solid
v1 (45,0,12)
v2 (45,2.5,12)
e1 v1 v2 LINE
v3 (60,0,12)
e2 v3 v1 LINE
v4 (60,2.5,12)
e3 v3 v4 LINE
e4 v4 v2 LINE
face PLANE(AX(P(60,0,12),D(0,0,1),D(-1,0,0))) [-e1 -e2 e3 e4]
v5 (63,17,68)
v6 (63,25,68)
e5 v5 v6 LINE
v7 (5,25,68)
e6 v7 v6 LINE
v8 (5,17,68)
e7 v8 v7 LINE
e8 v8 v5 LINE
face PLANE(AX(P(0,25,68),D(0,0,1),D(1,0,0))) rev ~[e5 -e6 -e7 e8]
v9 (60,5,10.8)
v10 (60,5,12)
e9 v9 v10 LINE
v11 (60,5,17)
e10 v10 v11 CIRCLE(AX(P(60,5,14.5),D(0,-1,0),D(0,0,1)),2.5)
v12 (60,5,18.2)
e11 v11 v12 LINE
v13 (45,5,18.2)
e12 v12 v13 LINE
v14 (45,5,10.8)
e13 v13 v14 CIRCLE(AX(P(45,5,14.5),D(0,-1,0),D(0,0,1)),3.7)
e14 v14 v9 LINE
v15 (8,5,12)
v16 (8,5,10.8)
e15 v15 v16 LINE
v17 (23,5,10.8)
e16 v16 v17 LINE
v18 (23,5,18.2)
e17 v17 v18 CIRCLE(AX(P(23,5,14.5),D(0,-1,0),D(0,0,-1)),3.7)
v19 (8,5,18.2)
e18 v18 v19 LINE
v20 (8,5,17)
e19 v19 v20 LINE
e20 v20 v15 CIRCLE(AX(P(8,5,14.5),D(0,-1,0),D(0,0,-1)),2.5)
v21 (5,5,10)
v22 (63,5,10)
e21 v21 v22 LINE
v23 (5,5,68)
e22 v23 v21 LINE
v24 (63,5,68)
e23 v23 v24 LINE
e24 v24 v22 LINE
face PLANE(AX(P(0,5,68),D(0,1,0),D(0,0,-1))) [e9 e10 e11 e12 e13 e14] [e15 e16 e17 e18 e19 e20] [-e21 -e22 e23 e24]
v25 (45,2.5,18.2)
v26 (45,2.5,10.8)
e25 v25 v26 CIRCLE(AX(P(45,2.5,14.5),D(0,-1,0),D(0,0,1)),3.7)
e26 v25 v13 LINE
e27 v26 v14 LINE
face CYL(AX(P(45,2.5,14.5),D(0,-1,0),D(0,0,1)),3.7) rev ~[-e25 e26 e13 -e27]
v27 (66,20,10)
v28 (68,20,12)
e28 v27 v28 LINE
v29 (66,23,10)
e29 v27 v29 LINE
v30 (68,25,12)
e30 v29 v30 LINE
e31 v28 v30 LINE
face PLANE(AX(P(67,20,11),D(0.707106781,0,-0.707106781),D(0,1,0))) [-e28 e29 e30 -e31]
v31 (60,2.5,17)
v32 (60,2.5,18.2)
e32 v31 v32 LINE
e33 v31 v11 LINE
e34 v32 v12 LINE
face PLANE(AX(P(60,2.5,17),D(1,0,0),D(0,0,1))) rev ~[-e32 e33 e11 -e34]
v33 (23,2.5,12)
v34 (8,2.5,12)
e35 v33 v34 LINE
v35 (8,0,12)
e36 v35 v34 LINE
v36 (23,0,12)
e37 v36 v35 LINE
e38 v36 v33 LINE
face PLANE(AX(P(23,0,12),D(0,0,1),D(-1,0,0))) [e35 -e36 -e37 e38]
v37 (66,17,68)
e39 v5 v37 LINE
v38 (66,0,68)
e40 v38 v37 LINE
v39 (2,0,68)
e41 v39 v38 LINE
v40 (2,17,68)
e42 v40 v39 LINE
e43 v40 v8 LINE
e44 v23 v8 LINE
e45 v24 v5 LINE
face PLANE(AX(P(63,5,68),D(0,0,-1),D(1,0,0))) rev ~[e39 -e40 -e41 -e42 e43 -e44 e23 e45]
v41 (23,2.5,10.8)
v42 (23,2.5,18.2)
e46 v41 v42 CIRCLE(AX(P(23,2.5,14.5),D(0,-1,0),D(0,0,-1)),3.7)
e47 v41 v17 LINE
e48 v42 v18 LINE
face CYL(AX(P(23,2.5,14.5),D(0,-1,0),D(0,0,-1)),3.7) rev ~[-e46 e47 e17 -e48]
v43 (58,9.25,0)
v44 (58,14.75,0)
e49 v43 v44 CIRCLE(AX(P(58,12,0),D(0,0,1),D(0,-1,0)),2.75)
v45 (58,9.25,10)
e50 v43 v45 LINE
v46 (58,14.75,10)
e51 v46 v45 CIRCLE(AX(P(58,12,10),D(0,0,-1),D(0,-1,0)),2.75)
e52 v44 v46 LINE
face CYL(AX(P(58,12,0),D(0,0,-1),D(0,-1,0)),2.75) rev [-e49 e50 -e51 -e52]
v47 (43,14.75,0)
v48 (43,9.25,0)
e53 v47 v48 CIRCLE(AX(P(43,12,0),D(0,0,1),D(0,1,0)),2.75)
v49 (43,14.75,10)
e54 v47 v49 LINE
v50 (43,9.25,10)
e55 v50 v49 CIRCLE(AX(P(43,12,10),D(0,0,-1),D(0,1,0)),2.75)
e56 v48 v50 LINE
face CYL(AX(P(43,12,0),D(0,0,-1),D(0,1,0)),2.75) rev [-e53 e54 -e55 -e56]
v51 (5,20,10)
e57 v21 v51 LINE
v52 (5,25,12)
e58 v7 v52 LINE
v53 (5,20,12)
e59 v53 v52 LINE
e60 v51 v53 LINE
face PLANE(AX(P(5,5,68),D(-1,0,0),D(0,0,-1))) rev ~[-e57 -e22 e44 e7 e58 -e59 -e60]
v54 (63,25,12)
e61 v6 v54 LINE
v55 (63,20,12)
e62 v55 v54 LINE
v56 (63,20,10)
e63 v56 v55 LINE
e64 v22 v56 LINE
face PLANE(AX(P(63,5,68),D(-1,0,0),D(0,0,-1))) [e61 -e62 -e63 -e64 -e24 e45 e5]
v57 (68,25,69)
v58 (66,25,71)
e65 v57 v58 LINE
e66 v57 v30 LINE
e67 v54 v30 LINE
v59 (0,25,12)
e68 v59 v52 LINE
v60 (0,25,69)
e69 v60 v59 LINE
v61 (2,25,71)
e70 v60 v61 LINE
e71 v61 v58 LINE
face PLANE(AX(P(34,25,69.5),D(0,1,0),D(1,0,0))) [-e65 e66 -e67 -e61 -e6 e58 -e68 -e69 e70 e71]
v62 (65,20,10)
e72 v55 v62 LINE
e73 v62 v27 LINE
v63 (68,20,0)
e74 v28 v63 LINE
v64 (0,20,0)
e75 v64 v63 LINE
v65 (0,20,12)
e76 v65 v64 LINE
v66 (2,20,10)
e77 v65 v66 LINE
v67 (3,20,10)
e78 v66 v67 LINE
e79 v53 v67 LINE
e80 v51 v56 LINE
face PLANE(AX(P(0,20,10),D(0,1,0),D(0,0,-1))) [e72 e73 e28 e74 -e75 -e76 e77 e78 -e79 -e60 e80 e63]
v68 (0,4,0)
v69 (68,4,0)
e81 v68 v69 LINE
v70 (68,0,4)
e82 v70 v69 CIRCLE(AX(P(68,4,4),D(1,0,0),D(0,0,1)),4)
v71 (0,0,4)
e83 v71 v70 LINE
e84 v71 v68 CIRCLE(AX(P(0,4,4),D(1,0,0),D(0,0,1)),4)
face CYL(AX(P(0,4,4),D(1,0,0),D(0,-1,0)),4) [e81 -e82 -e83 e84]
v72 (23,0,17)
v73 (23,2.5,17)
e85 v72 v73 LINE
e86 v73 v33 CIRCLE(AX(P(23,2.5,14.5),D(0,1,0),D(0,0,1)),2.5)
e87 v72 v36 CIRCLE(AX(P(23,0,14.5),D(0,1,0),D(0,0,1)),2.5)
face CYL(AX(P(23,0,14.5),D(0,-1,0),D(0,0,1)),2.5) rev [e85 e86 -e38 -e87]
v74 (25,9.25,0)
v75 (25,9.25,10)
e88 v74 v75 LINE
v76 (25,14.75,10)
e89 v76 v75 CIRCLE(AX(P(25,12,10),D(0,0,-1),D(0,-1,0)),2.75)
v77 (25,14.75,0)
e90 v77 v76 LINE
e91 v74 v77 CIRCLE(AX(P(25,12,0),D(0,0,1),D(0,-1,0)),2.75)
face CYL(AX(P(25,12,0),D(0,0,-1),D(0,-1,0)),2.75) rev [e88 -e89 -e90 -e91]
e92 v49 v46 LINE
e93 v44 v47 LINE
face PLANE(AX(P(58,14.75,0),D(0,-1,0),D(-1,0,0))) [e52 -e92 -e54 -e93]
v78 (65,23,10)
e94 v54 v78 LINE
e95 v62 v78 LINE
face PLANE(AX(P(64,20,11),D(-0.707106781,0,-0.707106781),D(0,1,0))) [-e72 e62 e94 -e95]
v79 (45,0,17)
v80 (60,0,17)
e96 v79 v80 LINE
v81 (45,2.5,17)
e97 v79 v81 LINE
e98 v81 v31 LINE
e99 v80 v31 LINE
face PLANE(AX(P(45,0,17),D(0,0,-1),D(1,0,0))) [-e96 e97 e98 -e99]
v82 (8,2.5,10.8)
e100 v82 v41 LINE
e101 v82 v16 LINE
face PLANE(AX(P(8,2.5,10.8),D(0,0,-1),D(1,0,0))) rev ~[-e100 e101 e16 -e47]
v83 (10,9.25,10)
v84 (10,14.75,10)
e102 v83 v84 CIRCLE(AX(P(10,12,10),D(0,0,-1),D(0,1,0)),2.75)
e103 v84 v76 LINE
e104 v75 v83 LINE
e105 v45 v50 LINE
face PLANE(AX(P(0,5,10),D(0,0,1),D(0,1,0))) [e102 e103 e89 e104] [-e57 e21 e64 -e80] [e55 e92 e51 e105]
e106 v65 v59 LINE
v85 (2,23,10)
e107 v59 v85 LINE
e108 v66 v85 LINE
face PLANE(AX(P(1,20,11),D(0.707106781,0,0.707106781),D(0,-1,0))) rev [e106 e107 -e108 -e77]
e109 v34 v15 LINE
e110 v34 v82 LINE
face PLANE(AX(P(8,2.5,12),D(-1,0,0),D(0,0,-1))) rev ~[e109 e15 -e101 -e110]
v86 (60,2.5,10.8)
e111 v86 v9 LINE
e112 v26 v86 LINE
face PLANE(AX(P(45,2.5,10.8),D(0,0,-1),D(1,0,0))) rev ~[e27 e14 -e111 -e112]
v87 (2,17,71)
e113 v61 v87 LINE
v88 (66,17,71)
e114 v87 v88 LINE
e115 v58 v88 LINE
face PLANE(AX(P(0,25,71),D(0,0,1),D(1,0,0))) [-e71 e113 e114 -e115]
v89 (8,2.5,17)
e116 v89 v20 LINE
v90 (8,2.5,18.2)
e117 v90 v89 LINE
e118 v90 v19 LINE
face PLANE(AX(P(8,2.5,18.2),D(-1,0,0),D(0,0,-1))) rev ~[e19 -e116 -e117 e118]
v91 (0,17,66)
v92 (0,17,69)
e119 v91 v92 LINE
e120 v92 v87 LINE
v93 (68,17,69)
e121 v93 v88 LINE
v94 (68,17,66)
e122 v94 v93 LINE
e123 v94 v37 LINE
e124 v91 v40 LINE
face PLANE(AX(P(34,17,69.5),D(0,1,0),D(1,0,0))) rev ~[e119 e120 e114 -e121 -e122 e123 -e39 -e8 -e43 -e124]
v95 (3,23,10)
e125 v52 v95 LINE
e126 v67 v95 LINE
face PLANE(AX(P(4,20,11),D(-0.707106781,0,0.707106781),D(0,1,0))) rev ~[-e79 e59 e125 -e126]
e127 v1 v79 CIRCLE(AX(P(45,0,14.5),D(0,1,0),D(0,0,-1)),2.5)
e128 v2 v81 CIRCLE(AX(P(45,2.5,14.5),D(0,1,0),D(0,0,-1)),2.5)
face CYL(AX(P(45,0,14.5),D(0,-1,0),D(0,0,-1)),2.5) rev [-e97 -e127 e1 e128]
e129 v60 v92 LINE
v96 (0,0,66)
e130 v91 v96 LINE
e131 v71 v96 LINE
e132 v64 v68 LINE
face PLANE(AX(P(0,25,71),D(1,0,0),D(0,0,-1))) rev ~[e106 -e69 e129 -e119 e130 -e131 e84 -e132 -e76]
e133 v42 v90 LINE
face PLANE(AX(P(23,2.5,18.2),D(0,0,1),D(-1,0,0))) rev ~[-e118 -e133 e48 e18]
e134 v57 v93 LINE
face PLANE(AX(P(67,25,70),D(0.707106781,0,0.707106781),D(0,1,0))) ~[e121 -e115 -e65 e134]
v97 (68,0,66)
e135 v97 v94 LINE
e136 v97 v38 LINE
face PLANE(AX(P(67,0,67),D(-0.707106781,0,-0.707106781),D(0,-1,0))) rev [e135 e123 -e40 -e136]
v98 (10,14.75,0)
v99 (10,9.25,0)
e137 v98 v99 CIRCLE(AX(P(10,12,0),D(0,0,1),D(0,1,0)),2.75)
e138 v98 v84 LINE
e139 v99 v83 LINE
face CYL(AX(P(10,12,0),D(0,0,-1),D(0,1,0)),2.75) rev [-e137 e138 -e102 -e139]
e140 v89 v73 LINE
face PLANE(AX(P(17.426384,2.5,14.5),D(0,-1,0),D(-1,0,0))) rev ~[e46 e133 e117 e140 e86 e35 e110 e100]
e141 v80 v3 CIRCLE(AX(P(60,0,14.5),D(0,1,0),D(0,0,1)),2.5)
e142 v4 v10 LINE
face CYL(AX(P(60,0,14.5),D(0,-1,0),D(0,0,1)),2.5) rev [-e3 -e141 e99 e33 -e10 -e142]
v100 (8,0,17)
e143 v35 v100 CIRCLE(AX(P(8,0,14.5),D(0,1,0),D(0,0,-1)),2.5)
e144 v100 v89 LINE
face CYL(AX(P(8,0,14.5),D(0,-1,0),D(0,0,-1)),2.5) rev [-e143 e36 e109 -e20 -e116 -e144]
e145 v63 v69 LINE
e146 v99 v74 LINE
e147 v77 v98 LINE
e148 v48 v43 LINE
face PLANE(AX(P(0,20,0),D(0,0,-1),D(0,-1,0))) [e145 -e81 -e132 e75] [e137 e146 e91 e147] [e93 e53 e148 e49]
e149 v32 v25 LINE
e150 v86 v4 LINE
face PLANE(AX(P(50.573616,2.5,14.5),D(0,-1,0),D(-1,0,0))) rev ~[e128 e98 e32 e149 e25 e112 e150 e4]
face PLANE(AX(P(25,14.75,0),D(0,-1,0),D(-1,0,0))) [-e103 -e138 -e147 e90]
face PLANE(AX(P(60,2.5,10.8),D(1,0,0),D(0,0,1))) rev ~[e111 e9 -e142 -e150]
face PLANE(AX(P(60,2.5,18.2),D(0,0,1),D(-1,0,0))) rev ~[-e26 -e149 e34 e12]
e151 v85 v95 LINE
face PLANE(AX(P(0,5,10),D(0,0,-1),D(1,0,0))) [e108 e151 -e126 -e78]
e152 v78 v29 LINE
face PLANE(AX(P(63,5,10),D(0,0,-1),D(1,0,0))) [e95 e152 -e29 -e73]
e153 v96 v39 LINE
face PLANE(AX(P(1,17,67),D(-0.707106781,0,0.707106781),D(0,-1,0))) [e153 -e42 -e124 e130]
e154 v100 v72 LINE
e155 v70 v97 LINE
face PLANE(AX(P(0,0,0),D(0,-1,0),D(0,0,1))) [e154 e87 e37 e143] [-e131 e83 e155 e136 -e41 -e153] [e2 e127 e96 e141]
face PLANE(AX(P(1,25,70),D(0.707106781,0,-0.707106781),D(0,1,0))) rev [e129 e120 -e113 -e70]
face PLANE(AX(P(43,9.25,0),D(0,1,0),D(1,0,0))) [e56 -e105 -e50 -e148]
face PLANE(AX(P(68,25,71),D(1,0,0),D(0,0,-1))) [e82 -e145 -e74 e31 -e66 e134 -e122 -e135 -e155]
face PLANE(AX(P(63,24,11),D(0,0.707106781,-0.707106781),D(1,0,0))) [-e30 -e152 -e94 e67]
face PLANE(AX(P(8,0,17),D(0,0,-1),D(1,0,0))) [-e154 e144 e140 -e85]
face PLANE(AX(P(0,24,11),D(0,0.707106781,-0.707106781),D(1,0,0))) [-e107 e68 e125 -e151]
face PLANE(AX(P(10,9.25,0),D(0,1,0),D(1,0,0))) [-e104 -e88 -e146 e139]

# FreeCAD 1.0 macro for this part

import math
import FreeCAD as App
import Part
import Sketcher


def edges_at(feature, points):
    """Names of the edges that pass closest to the given points."""
    edges = feature.Shape.Edges
    near = lambda p: min(range(len(edges)), key=lambda i: edges[i].distToShape(Part.Vertex(*p))[0])
    return sorted({f"Edge{near(p) + 1}" for p in points})


def add_polygon(sketch, points):
    """Adds a closed chain of lines whose ends are joined by coincident constraints."""
    first, n = sketch.GeometryCount, len(points)
    for a, b in zip(points, points[1:] + points[:1]):
        sketch.addGeometry(Part.LineSegment(App.Vector(*a, 0), App.Vector(*b, 0)), False)
    for i in range(n):
        sketch.addConstraint(Sketcher.Constraint("Coincident", first + i, 2, first + (i + 1) % n, 1))

doc = App.newDocument("Part")
body = doc.addObject("PartDesign::Body", "Body")

# Sketch on YZ plane
sketch1 = body.newObject("Sketcher::SketchObject", "Sketch")
sketch1.AttachmentSupport = (doc.getObject("YZ_Plane"), [""])
sketch1.MapMode = "FlatFace"
add_polygon(sketch1, [(0, 68), (0, 0), (20, 0), (20, 10), (5, 10), (5, 68)])  # lines 0-5
sketch1.addConstraint([
    Sketcher.Constraint("Vertical", 0),
    Sketcher.Constraint("Horizontal", 1),
    Sketcher.Constraint("Vertical", 2),
    Sketcher.Constraint("Horizontal", 3),
    Sketcher.Constraint("Vertical", 4),
    Sketcher.Constraint("Horizontal", 5),
    Sketcher.Constraint("Coincident", 0, 2, -1, 1),
    Sketcher.Constraint("DistanceX", 1, 1, 1, 2, 20.0),
    Sketcher.Constraint("DistanceX", 3, 2, 3, 1, 15.0),
    Sketcher.Constraint("DistanceY", 0, 2, 0, 1, 68.0),
    Sketcher.Constraint("DistanceY", 2, 1, 2, 2, 10.0),
])
pad1 = body.newObject("PartDesign::Pad", "Pad")
pad1.Profile = sketch1
pad1.Length = 68

# Sketch on XZ plane
sketch2 = body.newObject("Sketcher::SketchObject", "Sketch001")
sketch2.AttachmentSupport = (doc.getObject("XZ_Plane"), [""])
sketch2.MapMode = "FlatFace"
sketch2.AttachmentOffset = App.Placement(App.Vector(0, 0, -5), App.Rotation())
add_polygon(sketch2, [(63, 10), (63, 68), (68, 68), (68, 10)])  # lines 0-3
add_polygon(sketch2, [(0, 10), (0, 68), (5, 68), (5, 10)])  # lines 4-7
sketch2.addConstraint([
    Sketcher.Constraint("Vertical", 0),
    Sketcher.Constraint("Horizontal", 1),
    Sketcher.Constraint("Vertical", 2),
    Sketcher.Constraint("Horizontal", 3),
    Sketcher.Constraint("Vertical", 4),
    Sketcher.Constraint("Horizontal", 5),
    Sketcher.Constraint("Vertical", 6),
    Sketcher.Constraint("Horizontal", 7),
    Sketcher.Constraint("PointOnObject", 4, 2, -2),
    Sketcher.Constraint("Horizontal", 1, 2, 4, 2),
    Sketcher.Constraint("Horizontal", 3, 2, 6, 2),
    Sketcher.Constraint("Equal", 3, 5),
    Sketcher.Constraint("DistanceX", 1, 1, 1, 2, 5.0),
    Sketcher.Constraint("DistanceY", 0, 1, 0, 2, 58.0),
    Sketcher.Constraint("DistanceX", -1, 1, 0, 2, 63.0),
    Sketcher.Constraint("DistanceY", -1, 1, 0, 2, 68.0),
])
pad2 = body.newObject("PartDesign::Pad", "Pad001")
pad2.Profile = sketch2
pad2.Length = 20
pad2.Reversed = True

# Sketch on XY plane
sketch3 = body.newObject("Sketcher::SketchObject", "Sketch002")
sketch3.AttachmentSupport = (doc.getObject("XY_Plane"), [""])
sketch3.MapMode = "FlatFace"
sketch3.addGeometry([
    Part.LineSegment(App.Vector(43, 14.8, 0), App.Vector(58, 14.8, 0)),  # 0
    Part.ArcOfCircle(Part.Circle(App.Vector(58, 12, 0), App.Vector(0, 0, 1), 2.8), math.radians(-90), math.radians(90)),  # 1
    Part.LineSegment(App.Vector(58, 9.2, 0), App.Vector(43, 9.2, 0)),  # 2
    Part.ArcOfCircle(Part.Circle(App.Vector(43, 12, 0), App.Vector(0, 0, 1), 2.8), math.radians(90), math.radians(270)),  # 3
    Part.LineSegment(App.Vector(10, 14.8, 0), App.Vector(25, 14.8, 0)),  # 4
    Part.ArcOfCircle(Part.Circle(App.Vector(25, 12, 0), App.Vector(0, 0, 1), 2.8), math.radians(-90), math.radians(90)),  # 5
    Part.LineSegment(App.Vector(25, 9.2, 0), App.Vector(10, 9.2, 0)),  # 6
    Part.ArcOfCircle(Part.Circle(App.Vector(10, 12, 0), App.Vector(0, 0, 1), 2.8), math.radians(90), math.radians(270)),  # 7
], False)
sketch3.addConstraint([
    Sketcher.Constraint("Tangent", 0, 2, 1, 2),
    Sketcher.Constraint("Tangent", 1, 1, 2, 1),
    Sketcher.Constraint("Tangent", 2, 2, 3, 2),
    Sketcher.Constraint("Tangent", 3, 1, 0, 1),
    Sketcher.Constraint("Tangent", 4, 2, 5, 2),
    Sketcher.Constraint("Tangent", 5, 1, 6, 1),
    Sketcher.Constraint("Tangent", 6, 2, 7, 2),
    Sketcher.Constraint("Tangent", 7, 1, 4, 1),
    Sketcher.Constraint("Horizontal", 0),
    Sketcher.Constraint("Horizontal", 2),
    Sketcher.Constraint("Horizontal", 4),
    Sketcher.Constraint("Horizontal", 6),
    Sketcher.Constraint("Equal", 3, 5),
    Sketcher.Constraint("Horizontal", 3, 3, 5, 3),
    Sketcher.Constraint("Equal", 2, 4),
    Sketcher.Constraint("DistanceX", 0, 1, 0, 2, 15.0),
    Sketcher.Constraint("Radius", 1, 2.75),
    Sketcher.Constraint("DistanceX", -1, 1, 1, 3, 58.0),
    Sketcher.Constraint("DistanceY", -1, 1, 1, 3, 12.0),
    Sketcher.Constraint("DistanceX", -1, 1, 5, 3, 25.0),
])
pocket1 = body.newObject("PartDesign::Pocket", "Pocket")
pocket1.Profile = sketch3
pocket1.Length = 20
pocket1.Reversed = True
doc.recompute()

fillet = body.newObject("PartDesign::Fillet", "Fillet")
fillet.Base = (pocket1, edges_at(pocket1, [(34, 0, 0)]))
fillet.Radius = 4

# Sketch on XZ plane
sketch4 = body.newObject("Sketcher::SketchObject", "Sketch003")
sketch4.AttachmentSupport = (doc.getObject("XZ_Plane"), [""])
sketch4.MapMode = "FlatFace"
sketch4.AttachmentOffset = App.Placement(App.Vector(0, 0, -25), App.Rotation())
add_polygon(sketch4, [(0, 68), (0, 71), (68, 71), (68, 68)])  # lines 0-3
sketch4.addConstraint([
    Sketcher.Constraint("Vertical", 0),
    Sketcher.Constraint("Horizontal", 1),
    Sketcher.Constraint("Vertical", 2),
    Sketcher.Constraint("Horizontal", 3),
    Sketcher.Constraint("PointOnObject", 0, 2, -2),
    Sketcher.Constraint("DistanceX", 1, 1, 1, 2, 68.0),
    Sketcher.Constraint("DistanceY", 0, 1, 0, 2, 3.0),
    Sketcher.Constraint("DistanceY", -1, 1, 0, 2, 71.0),
])
pad3 = body.newObject("PartDesign::Pad", "Pad002")
pad3.Profile = sketch4
pad3.Length = 8
doc.recompute()

chamfer = body.newObject("PartDesign::Chamfer", "Chamfer")
chamfer.Base = (pad3, edges_at(pad3, [
    (68, 21, 71),
    (0, 21, 71),
    (68, 22.5, 10),
    (63, 22.5, 10),
    (65.5, 25, 10),
    (5, 22.5, 10),
    (0, 22.5, 10),
    (2.5, 25, 10),
    (0, 8.5, 68),
    (68, 8.5, 68),
]))
chamfer.Size = 2

# Sketch on XZ plane
sketch5 = body.newObject("Sketcher::SketchObject", "Sketch004")
sketch5.AttachmentSupport = (doc.getObject("XZ_Plane"), [""])
sketch5.MapMode = "FlatFace"
sketch5.addGeometry([
    Part.LineSegment(App.Vector(23, 17, 0), App.Vector(8, 17, 0)),  # 0
    Part.ArcOfCircle(Part.Circle(App.Vector(8, 14.5, 0), App.Vector(0, 0, 1), 2.5), math.radians(90), math.radians(270)),  # 1
    Part.LineSegment(App.Vector(8, 12, 0), App.Vector(23, 12, 0)),  # 2
    Part.ArcOfCircle(Part.Circle(App.Vector(23, 14.5, 0), App.Vector(0, 0, 1), 2.5), math.radians(-90), math.radians(90)),  # 3
    Part.LineSegment(App.Vector(60, 17, 0), App.Vector(45, 17, 0)),  # 4
    Part.ArcOfCircle(Part.Circle(App.Vector(45, 14.5, 0), App.Vector(0, 0, 1), 2.5), math.radians(90), math.radians(270)),  # 5
    Part.LineSegment(App.Vector(45, 12, 0), App.Vector(60, 12, 0)),  # 6
    Part.ArcOfCircle(Part.Circle(App.Vector(60, 14.5, 0), App.Vector(0, 0, 1), 2.5), math.radians(-90), math.radians(90)),  # 7
], False)
sketch5.addConstraint([
    Sketcher.Constraint("Tangent", 0, 2, 1, 1),
    Sketcher.Constraint("Tangent", 1, 2, 2, 1),
    Sketcher.Constraint("Tangent", 2, 2, 3, 1),
    Sketcher.Constraint("Tangent", 3, 2, 0, 1),
    Sketcher.Constraint("Tangent", 4, 2, 5, 1),
    Sketcher.Constraint("Tangent", 5, 2, 6, 1),
    Sketcher.Constraint("Tangent", 6, 2, 7, 1),
    Sketcher.Constraint("Tangent", 7, 2, 4, 1),
    Sketcher.Constraint("Horizontal", 0),
    Sketcher.Constraint("Horizontal", 2),
    Sketcher.Constraint("Horizontal", 4),
    Sketcher.Constraint("Horizontal", 6),
    Sketcher.Constraint("Equal", 3, 5),
    Sketcher.Constraint("Horizontal", 3, 3, 5, 3),
    Sketcher.Constraint("Equal", 2, 4),
    Sketcher.Constraint("Radius", 1, 2.5),
    Sketcher.Constraint("DistanceX", 0, 2, 0, 1, 15.0),
    Sketcher.Constraint("DistanceX", -1, 1, 1, 3, 8.0),
    Sketcher.Constraint("DistanceX", -1, 1, 5, 3, 45.0),
    Sketcher.Constraint("DistanceY", -1, 1, 0, 2, 17.0),
])
pocket2 = body.newObject("PartDesign::Pocket", "Pocket001")
pocket2.Profile = sketch5
pocket2.Length = 8

# Sketch on XZ plane
sketch6 = body.newObject("Sketcher::SketchObject", "Sketch005")
sketch6.AttachmentSupport = (doc.getObject("XZ_Plane"), [""])
sketch6.MapMode = "FlatFace"
sketch6.AttachmentOffset = App.Placement(App.Vector(0, 0, -2.5), App.Rotation())
sketch6.addGeometry([
    Part.LineSegment(App.Vector(8, 18.2, 0), App.Vector(23, 18.2, 0)),  # 0
    Part.ArcOfCircle(Part.Circle(App.Vector(23, 14.5, 0), App.Vector(0, 0, 1), 3.7), math.radians(-90), math.radians(90)),  # 1
    Part.LineSegment(App.Vector(23, 10.8, 0), App.Vector(8, 10.8, 0)),  # 2
    Part.LineSegment(App.Vector(8, 10.8, 0), App.Vector(8, 12, 0)),  # 3
    Part.LineSegment(App.Vector(8, 12, 0), App.Vector(23, 12, 0)),  # 4
    Part.ArcOfCircle(Part.Circle(App.Vector(23, 14.5, 0), App.Vector(0, 0, 1), 2.5), math.radians(-90), math.radians(90)),  # 5
    Part.LineSegment(App.Vector(23, 17, 0), App.Vector(8, 17, 0)),  # 6
    Part.LineSegment(App.Vector(8, 17, 0), App.Vector(8, 18.2, 0)),  # 7
    Part.LineSegment(App.Vector(60, 10.8, 0), App.Vector(45, 10.8, 0)),  # 8
    Part.ArcOfCircle(Part.Circle(App.Vector(45, 14.5, 0), App.Vector(0, 0, 1), 3.7), math.radians(90), math.radians(270)),  # 9
    Part.LineSegment(App.Vector(45, 18.2, 0), App.Vector(60, 18.2, 0)),  # 10
    Part.LineSegment(App.Vector(60, 18.2, 0), App.Vector(60, 17, 0)),  # 11
    Part.LineSegment(App.Vector(60, 17, 0), App.Vector(45, 17, 0)),  # 12
    Part.ArcOfCircle(Part.Circle(App.Vector(45, 14.5, 0), App.Vector(0, 0, 1), 2.5), math.radians(90), math.radians(270)),  # 13
    Part.LineSegment(App.Vector(45, 12, 0), App.Vector(60, 12, 0)),  # 14
    Part.LineSegment(App.Vector(60, 12, 0), App.Vector(60, 10.8, 0)),  # 15
], False)
sketch6.addConstraint([
    Sketcher.Constraint("Tangent", 0, 2, 1, 2),
    Sketcher.Constraint("Tangent", 1, 1, 2, 1),
    Sketcher.Constraint("Coincident", 2, 2, 3, 1),
    Sketcher.Constraint("Coincident", 3, 2, 4, 1),
    Sketcher.Constraint("Tangent", 4, 2, 5, 1),
    Sketcher.Constraint("Tangent", 5, 2, 6, 1),
    Sketcher.Constraint("Coincident", 6, 2, 7, 1),
    Sketcher.Constraint("Coincident", 7, 2, 0, 1),
    Sketcher.Constraint("Tangent", 8, 2, 9, 2),
    Sketcher.Constraint("Tangent", 9, 1, 10, 1),
    Sketcher.Constraint("Coincident", 10, 2, 11, 1),
    Sketcher.Constraint("Coincident", 11, 2, 12, 1),
    Sketcher.Constraint("Tangent", 12, 2, 13, 1),
    Sketcher.Constraint("Tangent", 13, 2, 14, 1),
    Sketcher.Constraint("Coincident", 14, 2, 15, 1),
    Sketcher.Constraint("Coincident", 15, 2, 8, 1),
    Sketcher.Constraint("Horizontal", 0),
    Sketcher.Constraint("Horizontal", 2),
    Sketcher.Constraint("Vertical", 3),
    Sketcher.Constraint("Horizontal", 4),
    Sketcher.Constraint("Horizontal", 6),
    Sketcher.Constraint("Vertical", 7),
    Sketcher.Constraint("Horizontal", 8),
    Sketcher.Constraint("Horizontal", 10),
    Sketcher.Constraint("Vertical", 11),
    Sketcher.Constraint("Horizontal", 12),
    Sketcher.Constraint("Horizontal", 14),
    Sketcher.Constraint("Vertical", 15),
    Sketcher.Constraint("Coincident", 5, 3, 1, 3),
    Sketcher.Constraint("Coincident", 13, 3, 9, 3),
    Sketcher.Constraint("Equal", 1, 9),
    Sketcher.Constraint("Equal", 5, 13),
    Sketcher.Constraint("Horizontal", 5, 3, 9, 3),
    Sketcher.Constraint("Vertical", 3, 2, 6, 2),
    Sketcher.Constraint("Vertical", 11, 2, 14, 2),
    Sketcher.Constraint("Equal", 6, 8),
    Sketcher.Constraint("Radius", 1, 3.7),
    Sketcher.Constraint("Radius", 5, 2.5),
    Sketcher.Constraint("DistanceX", 0, 1, 0, 2, 15.0),
    Sketcher.Constraint("DistanceX", -1, 1, 1, 3, 23.0),
    Sketcher.Constraint("DistanceX", -1, 1, 9, 3, 45.0),
    Sketcher.Constraint("DistanceY", -1, 1, 3, 2, 12.0),
])
pocket3 = body.newObject("PartDesign::Pocket", "Pocket002")
pocket3.Profile = sketch6
pocket3.Length = 2.5

doc.recompute()
